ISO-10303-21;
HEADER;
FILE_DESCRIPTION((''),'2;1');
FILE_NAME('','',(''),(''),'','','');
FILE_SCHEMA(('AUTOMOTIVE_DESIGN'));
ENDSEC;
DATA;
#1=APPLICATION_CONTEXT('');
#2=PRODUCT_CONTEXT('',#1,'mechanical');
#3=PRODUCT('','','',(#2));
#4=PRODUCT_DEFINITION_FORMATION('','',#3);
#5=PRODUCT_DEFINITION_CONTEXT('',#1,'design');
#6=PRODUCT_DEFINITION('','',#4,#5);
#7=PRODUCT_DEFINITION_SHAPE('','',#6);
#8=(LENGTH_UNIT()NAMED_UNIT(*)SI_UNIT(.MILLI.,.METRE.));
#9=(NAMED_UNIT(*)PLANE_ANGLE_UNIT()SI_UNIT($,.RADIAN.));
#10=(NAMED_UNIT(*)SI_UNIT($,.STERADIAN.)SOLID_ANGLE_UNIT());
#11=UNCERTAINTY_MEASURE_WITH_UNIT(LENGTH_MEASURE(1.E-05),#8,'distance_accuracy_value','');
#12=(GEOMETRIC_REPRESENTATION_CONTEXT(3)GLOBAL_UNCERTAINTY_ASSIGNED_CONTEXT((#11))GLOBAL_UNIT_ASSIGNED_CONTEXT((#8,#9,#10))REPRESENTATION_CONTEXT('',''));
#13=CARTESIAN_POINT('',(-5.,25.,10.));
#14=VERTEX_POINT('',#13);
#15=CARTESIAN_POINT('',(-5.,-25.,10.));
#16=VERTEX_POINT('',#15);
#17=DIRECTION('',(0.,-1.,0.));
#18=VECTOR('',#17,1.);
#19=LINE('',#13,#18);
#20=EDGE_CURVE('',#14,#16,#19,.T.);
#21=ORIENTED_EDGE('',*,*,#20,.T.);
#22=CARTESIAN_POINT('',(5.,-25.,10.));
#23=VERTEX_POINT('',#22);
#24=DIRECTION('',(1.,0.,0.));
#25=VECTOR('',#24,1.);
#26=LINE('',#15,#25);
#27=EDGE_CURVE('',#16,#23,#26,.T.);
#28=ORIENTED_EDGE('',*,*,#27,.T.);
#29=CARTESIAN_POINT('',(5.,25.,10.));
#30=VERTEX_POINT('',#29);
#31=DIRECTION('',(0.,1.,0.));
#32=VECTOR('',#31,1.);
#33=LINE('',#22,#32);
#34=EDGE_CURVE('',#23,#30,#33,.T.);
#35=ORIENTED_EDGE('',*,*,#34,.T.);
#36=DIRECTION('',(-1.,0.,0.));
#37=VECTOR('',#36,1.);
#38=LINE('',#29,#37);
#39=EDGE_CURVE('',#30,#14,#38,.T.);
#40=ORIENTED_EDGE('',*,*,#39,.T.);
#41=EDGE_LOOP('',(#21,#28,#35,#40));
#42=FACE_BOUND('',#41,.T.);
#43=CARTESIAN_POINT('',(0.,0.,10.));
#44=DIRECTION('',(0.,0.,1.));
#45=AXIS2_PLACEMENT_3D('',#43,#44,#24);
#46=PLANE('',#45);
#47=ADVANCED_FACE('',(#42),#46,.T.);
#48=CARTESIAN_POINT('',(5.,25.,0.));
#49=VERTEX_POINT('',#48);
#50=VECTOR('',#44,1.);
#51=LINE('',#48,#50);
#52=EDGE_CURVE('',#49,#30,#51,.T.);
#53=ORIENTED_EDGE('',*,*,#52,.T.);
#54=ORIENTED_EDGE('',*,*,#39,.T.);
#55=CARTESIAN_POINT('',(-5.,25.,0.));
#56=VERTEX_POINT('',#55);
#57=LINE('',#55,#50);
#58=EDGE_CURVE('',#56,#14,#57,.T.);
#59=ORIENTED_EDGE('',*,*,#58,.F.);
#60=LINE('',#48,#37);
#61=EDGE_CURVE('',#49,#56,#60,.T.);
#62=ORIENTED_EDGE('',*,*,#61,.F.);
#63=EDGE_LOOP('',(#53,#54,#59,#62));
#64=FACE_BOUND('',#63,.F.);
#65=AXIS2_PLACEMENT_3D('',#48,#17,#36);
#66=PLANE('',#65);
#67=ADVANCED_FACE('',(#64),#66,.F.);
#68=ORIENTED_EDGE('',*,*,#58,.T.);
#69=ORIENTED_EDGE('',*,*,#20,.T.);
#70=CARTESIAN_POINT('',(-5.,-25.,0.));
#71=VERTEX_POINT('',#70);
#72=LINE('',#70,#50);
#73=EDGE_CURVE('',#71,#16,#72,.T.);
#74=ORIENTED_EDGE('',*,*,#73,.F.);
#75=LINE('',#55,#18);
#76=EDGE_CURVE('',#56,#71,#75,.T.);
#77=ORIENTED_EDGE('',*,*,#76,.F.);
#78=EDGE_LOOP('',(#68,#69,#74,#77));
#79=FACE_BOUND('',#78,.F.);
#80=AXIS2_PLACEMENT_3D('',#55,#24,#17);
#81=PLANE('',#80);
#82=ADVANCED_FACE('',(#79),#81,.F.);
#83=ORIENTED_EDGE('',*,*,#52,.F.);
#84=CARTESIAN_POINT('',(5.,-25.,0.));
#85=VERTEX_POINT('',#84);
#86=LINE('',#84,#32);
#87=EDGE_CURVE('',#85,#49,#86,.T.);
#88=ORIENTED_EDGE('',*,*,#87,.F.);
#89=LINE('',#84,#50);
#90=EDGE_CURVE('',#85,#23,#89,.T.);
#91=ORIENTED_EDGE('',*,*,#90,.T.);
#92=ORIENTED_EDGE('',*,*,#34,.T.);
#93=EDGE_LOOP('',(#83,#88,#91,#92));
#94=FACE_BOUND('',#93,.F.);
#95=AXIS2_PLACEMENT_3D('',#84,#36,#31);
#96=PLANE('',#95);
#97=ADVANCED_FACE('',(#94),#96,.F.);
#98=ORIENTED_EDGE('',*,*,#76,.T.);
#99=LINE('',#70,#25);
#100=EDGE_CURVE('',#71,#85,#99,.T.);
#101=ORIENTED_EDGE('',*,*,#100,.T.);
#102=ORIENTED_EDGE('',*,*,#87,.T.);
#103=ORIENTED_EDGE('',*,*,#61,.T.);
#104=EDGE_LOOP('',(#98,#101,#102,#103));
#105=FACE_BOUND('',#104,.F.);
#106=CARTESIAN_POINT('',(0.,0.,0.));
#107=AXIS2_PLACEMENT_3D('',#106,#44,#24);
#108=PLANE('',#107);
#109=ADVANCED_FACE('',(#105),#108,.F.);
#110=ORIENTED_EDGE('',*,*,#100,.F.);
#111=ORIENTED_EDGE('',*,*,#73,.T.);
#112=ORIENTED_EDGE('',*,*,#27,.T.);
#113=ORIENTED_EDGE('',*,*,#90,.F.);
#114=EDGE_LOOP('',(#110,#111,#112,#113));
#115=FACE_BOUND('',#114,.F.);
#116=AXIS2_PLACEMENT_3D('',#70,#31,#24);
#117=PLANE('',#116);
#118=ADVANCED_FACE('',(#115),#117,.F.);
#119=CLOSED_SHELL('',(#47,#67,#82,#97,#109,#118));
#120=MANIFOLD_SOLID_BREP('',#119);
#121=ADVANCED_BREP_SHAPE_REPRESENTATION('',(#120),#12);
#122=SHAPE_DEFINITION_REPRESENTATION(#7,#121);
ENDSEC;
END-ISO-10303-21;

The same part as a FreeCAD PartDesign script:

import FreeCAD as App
import Part
import Sketcher


def add_polygon(sketch, points):
    """Adds a closed chain of lines whose ends are joined by coincident constraints."""
    first, n = sketch.GeometryCount, len(points)
    for a, b in zip(points, points[1:] + points[:1]):
        sketch.addGeometry(Part.LineSegment(App.Vector(*a, 0), App.Vector(*b, 0)), False)
    for i in range(n):
        sketch.addConstraint(Sketcher.Constraint("Coincident", first + i, 2, first + (i + 1) % n, 1))

doc = App.newDocument("Part")
params = doc.addObject("Spreadsheet::Sheet", "Params")
for row, (alias, value) in enumerate([
    ("sketch1_width", "10 mm"),
    ("sketch1_height", "50 mm"),
    ("pad1_length", "10 mm"),
], start=1):
    params.set(f"A{row}", alias)
    params.set(f"B{row}", "=" + value)
    params.setAlias(f"B{row}", alias)

body = doc.addObject("PartDesign::Body", "Body")

# Sketch on XY plane
sketch1 = doc.addObject("Sketcher::SketchObject", "Sketch")
body.addObject(sketch1)
sketch1.AttachmentSupport = (doc.XY_Plane, [""])
sketch1.MapMode = "FlatFace"
add_polygon(sketch1, [(-5, 25), (-5, -25), (5, -25), (5, 25)])  # lines 0-3
sketch1.addConstraint(Sketcher.Constraint("Vertical", 0))
sketch1.addConstraint(Sketcher.Constraint("Horizontal", 1))
sketch1.addConstraint(Sketcher.Constraint("Vertical", 2))
sketch1.addConstraint(Sketcher.Constraint("Horizontal", 3))
sketch1.addConstraint(Sketcher.Constraint("Symmetric", 0, 2, 2, 2, -1, 1))
sketch1.addConstraint(Sketcher.Constraint("DistanceX", 1, 1, 1, 2, 10.0))
sketch1.addConstraint(Sketcher.Constraint("DistanceY", 0, 2, 0, 1, 50.0))
sketch1.setExpression("Constraints[9]", "Params.sketch1_width")
sketch1.setExpression("Constraints[10]", "Params.sketch1_height")
pad1 = doc.addObject("PartDesign::Pad", "Pad")
body.addObject(pad1)
pad1.Profile = sketch1
pad1.setExpression("Length", "Params.pad1_length")

doc.recompute()
